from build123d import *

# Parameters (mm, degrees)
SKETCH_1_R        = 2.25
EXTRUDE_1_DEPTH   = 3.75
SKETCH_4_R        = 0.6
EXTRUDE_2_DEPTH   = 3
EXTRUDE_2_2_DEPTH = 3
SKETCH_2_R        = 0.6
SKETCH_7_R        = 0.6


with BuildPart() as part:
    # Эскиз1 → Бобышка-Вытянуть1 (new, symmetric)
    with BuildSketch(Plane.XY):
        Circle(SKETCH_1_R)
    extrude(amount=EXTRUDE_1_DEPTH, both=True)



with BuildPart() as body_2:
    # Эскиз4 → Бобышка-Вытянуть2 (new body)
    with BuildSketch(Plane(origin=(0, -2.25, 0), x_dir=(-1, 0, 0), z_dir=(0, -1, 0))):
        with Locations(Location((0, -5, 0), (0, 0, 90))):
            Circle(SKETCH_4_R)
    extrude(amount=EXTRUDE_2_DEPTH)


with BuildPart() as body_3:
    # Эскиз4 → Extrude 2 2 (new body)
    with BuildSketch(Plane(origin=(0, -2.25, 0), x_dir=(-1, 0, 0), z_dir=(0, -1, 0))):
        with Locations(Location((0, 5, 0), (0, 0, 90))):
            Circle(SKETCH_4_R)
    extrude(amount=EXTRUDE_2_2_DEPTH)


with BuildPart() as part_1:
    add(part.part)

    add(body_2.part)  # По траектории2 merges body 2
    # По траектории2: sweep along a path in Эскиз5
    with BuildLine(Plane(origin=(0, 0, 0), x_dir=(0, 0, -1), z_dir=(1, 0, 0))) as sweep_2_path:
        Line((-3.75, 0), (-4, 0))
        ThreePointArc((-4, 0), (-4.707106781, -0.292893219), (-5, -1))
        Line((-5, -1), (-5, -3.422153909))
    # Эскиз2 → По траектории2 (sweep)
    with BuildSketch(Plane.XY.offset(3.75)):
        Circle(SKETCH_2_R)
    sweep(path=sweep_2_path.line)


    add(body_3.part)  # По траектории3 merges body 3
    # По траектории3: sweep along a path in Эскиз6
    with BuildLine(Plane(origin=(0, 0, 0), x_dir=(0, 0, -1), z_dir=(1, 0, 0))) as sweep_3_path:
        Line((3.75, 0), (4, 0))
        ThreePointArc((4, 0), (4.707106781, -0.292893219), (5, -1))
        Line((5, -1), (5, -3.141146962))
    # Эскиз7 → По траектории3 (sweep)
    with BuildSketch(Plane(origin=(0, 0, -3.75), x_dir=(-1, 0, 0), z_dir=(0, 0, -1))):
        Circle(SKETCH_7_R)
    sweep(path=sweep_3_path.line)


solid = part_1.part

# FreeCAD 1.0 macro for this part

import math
import FreeCAD as App
import Part
import Sketcher

doc = App.newDocument("Part")
body = doc.addObject("PartDesign::Body", "Body")

sketch1 = body.newObject("Sketcher::SketchObject", "Sketch")
sketch1.AttachmentSupport = (doc.getObject("XY_Plane"), [""])
sketch1.MapMode = "FlatFace"
sketch1.addGeometry(Part.Circle(App.Vector(0, 0, 0), App.Vector(0, 0, 1), 2.2), False)
sketch1.addConstraint(Sketcher.Constraint("Coincident", 0, 3, -1, 1))
sketch1.addConstraint(Sketcher.Constraint("Diameter", 0, 4.5))
pad1 = body.newObject("PartDesign::Pad", "Pad")
pad1.Profile = sketch1
pad1.Length = 7.5
pad1.Midplane = True
body2 = doc.addObject("PartDesign::Body", "Body001")

sketch2 = body2.newObject("Sketcher::SketchObject", "Sketch001")
sketch2.AttachmentSupport = (doc.getObject("XZ_Plane001"), [""])
sketch2.MapMode = "FlatFace"
sketch2.AttachmentOffset = App.Placement(App.Vector(0, 0, 2.25), App.Rotation())
sketch2.addGeometry(Part.Circle(App.Vector(0, 5, 0), App.Vector(0, 0, 1), 0.6), False)
sketch2.addConstraint(Sketcher.Constraint("PointOnObject", 0, 3, -2))
sketch2.addConstraint(Sketcher.Constraint("Diameter", 0, 1.2))
sketch2.addConstraint(Sketcher.Constraint("DistanceY", -1, 1, 0, 3, 5.0))
pad2 = body2.newObject("PartDesign::Pad", "Pad001")
pad2.Profile = sketch2
pad2.Length = 3
body3 = doc.addObject("PartDesign::Body", "Body002")

sketch3 = body3.newObject("Sketcher::SketchObject", "Sketch002")
sketch3.AttachmentSupport = (doc.getObject("XZ_Plane002"), [""])
sketch3.MapMode = "FlatFace"
sketch3.AttachmentOffset = App.Placement(App.Vector(0, 0, 2.25), App.Rotation())
sketch3.addGeometry(Part.Circle(App.Vector(0, -5, 0), App.Vector(0, 0, 1), 0.6), False)
sketch3.addConstraint(Sketcher.Constraint("PointOnObject", 0, 3, -2))
sketch3.addConstraint(Sketcher.Constraint("Diameter", 0, 1.2))
sketch3.addConstraint(Sketcher.Constraint("DistanceY", 0, 3, -1, 1, 5.0))
pad3 = body3.newObject("PartDesign::Pad", "Pad002")
pad3.Profile = sketch3
pad3.Length = 3
body.AllowCompound = True
doc.recompute()

boolean = body.newObject("PartDesign::Boolean", "Boolean")
boolean.Type = "Fuse"
boolean.addObjects([body2])

sketch4 = body.newObject("Sketcher::SketchObject", "Sketch003")
sketch4.AttachmentSupport = (doc.getObject("XY_Plane"), [""])
sketch4.MapMode = "FlatFace"
sketch4.AttachmentOffset = App.Placement(App.Vector(0, 0, 3.75), App.Rotation())
sketch4.addGeometry(Part.Circle(App.Vector(0, 0, 0), App.Vector(0, 0, 1), 0.6), False)
sketch4.addConstraint(Sketcher.Constraint("Coincident", 0, 3, -1, 1))
sketch4.addConstraint(Sketcher.Constraint("Diameter", 0, 1.2))

sketch5 = body.newObject("Sketcher::SketchObject", "Sketch004")
sketch5.AttachmentSupport = (doc.getObject("YZ_Plane"), [""])
sketch5.MapMode = "FlatFace"
sketch5.addGeometry(Part.LineSegment(App.Vector(0, 3.75, 0), App.Vector(0, 4, 0)), False)
sketch5.addGeometry(Part.ArcOfCircle(Part.Circle(App.Vector(-1, 4, 0), App.Vector(0, 0, 1), 1), math.radians(0), math.radians(90)), False)
sketch5.addGeometry(Part.LineSegment(App.Vector(-1, 5, 0), App.Vector(-3.42, 5, 0)), False)
sketch5.addConstraint(Sketcher.Constraint("Tangent", 0, 2, 1, 1))
sketch5.addConstraint(Sketcher.Constraint("Tangent", 1, 2, 2, 1))
sketch5.addConstraint(Sketcher.Constraint("Vertical", 0))
sketch5.addConstraint(Sketcher.Constraint("Horizontal", 2))
sketch5.addConstraint(Sketcher.Constraint("PointOnObject", 0, 1, -2))
sketch5.addConstraint(Sketcher.Constraint("Radius", 1, 1.0))
sketch5.addConstraint(Sketcher.Constraint("DistanceY", -1, 1, 1, 3, 4.0))
sketch5.addConstraint(Sketcher.Constraint("DistanceY", 0, 1, 0, 2, 0.25))
sketch5.addConstraint(Sketcher.Constraint("DistanceX", 2, 2, 2, 1, 2.422154))
doc.recompute()

additivepipe = body.newObject("PartDesign::AdditivePipe", "AdditivePipe")
additivepipe.Profile = sketch4
additivepipe.Spine = (sketch5, ["Edge1", "Edge2", "Edge3"])
doc.recompute()

boolean2 = body.newObject("PartDesign::Boolean", "Boolean001")
boolean2.Type = "Fuse"
boolean2.addObjects([body3])

sketch6 = body.newObject("Sketcher::SketchObject", "Sketch005")
sketch6.AttachmentSupport = (doc.getObject("XY_Plane"), [""])
sketch6.MapMode = "FlatFace"
sketch6.AttachmentOffset = App.Placement(App.Vector(0, 0, -3.75), App.Rotation())
sketch6.addGeometry(Part.Circle(App.Vector(0, 0, 0), App.Vector(0, 0, 1), 0.6), False)
sketch6.addConstraint(Sketcher.Constraint("Coincident", 0, 3, -1, 1))
sketch6.addConstraint(Sketcher.Constraint("Diameter", 0, 1.2))

sketch7 = body.newObject("Sketcher::SketchObject", "Sketch006")
sketch7.AttachmentSupport = (doc.getObject("YZ_Plane"), [""])
sketch7.MapMode = "FlatFace"
sketch7.addGeometry(Part.LineSegment(App.Vector(0, -3.75, 0), App.Vector(0, -4, 0)), False)
sketch7.addGeometry(Part.ArcOfCircle(Part.Circle(App.Vector(-1, -4, 0), App.Vector(0, 0, 1), 1), math.radians(-90), math.radians(0)), False)
sketch7.addGeometry(Part.LineSegment(App.Vector(-1, -5, 0), App.Vector(-3.14, -5, 0)), False)
sketch7.addConstraint(Sketcher.Constraint("Tangent", 0, 2, 1, 2))
sketch7.addConstraint(Sketcher.Constraint("Tangent", 1, 1, 2, 1))
sketch7.addConstraint(Sketcher.Constraint("Vertical", 0))
sketch7.addConstraint(Sketcher.Constraint("Horizontal", 2))
sketch7.addConstraint(Sketcher.Constraint("PointOnObject", 0, 1, -2))
sketch7.addConstraint(Sketcher.Constraint("Radius", 1, 1.0))
sketch7.addConstraint(Sketcher.Constraint("DistanceY", 1, 3, -1, 1, 4.0))
sketch7.addConstraint(Sketcher.Constraint("DistanceY", 0, 2, 0, 1, 0.25))
sketch7.addConstraint(Sketcher.Constraint("DistanceX", 2, 2, 2, 1, 2.141147))
doc.recompute()

additivepipe2 = body.newObject("PartDesign::AdditivePipe", "AdditivePipe001")
additivepipe2.Profile = sketch6
additivepipe2.Spine = (sketch7, ["Edge1", "Edge2", "Edge3"])

doc.recompute()
